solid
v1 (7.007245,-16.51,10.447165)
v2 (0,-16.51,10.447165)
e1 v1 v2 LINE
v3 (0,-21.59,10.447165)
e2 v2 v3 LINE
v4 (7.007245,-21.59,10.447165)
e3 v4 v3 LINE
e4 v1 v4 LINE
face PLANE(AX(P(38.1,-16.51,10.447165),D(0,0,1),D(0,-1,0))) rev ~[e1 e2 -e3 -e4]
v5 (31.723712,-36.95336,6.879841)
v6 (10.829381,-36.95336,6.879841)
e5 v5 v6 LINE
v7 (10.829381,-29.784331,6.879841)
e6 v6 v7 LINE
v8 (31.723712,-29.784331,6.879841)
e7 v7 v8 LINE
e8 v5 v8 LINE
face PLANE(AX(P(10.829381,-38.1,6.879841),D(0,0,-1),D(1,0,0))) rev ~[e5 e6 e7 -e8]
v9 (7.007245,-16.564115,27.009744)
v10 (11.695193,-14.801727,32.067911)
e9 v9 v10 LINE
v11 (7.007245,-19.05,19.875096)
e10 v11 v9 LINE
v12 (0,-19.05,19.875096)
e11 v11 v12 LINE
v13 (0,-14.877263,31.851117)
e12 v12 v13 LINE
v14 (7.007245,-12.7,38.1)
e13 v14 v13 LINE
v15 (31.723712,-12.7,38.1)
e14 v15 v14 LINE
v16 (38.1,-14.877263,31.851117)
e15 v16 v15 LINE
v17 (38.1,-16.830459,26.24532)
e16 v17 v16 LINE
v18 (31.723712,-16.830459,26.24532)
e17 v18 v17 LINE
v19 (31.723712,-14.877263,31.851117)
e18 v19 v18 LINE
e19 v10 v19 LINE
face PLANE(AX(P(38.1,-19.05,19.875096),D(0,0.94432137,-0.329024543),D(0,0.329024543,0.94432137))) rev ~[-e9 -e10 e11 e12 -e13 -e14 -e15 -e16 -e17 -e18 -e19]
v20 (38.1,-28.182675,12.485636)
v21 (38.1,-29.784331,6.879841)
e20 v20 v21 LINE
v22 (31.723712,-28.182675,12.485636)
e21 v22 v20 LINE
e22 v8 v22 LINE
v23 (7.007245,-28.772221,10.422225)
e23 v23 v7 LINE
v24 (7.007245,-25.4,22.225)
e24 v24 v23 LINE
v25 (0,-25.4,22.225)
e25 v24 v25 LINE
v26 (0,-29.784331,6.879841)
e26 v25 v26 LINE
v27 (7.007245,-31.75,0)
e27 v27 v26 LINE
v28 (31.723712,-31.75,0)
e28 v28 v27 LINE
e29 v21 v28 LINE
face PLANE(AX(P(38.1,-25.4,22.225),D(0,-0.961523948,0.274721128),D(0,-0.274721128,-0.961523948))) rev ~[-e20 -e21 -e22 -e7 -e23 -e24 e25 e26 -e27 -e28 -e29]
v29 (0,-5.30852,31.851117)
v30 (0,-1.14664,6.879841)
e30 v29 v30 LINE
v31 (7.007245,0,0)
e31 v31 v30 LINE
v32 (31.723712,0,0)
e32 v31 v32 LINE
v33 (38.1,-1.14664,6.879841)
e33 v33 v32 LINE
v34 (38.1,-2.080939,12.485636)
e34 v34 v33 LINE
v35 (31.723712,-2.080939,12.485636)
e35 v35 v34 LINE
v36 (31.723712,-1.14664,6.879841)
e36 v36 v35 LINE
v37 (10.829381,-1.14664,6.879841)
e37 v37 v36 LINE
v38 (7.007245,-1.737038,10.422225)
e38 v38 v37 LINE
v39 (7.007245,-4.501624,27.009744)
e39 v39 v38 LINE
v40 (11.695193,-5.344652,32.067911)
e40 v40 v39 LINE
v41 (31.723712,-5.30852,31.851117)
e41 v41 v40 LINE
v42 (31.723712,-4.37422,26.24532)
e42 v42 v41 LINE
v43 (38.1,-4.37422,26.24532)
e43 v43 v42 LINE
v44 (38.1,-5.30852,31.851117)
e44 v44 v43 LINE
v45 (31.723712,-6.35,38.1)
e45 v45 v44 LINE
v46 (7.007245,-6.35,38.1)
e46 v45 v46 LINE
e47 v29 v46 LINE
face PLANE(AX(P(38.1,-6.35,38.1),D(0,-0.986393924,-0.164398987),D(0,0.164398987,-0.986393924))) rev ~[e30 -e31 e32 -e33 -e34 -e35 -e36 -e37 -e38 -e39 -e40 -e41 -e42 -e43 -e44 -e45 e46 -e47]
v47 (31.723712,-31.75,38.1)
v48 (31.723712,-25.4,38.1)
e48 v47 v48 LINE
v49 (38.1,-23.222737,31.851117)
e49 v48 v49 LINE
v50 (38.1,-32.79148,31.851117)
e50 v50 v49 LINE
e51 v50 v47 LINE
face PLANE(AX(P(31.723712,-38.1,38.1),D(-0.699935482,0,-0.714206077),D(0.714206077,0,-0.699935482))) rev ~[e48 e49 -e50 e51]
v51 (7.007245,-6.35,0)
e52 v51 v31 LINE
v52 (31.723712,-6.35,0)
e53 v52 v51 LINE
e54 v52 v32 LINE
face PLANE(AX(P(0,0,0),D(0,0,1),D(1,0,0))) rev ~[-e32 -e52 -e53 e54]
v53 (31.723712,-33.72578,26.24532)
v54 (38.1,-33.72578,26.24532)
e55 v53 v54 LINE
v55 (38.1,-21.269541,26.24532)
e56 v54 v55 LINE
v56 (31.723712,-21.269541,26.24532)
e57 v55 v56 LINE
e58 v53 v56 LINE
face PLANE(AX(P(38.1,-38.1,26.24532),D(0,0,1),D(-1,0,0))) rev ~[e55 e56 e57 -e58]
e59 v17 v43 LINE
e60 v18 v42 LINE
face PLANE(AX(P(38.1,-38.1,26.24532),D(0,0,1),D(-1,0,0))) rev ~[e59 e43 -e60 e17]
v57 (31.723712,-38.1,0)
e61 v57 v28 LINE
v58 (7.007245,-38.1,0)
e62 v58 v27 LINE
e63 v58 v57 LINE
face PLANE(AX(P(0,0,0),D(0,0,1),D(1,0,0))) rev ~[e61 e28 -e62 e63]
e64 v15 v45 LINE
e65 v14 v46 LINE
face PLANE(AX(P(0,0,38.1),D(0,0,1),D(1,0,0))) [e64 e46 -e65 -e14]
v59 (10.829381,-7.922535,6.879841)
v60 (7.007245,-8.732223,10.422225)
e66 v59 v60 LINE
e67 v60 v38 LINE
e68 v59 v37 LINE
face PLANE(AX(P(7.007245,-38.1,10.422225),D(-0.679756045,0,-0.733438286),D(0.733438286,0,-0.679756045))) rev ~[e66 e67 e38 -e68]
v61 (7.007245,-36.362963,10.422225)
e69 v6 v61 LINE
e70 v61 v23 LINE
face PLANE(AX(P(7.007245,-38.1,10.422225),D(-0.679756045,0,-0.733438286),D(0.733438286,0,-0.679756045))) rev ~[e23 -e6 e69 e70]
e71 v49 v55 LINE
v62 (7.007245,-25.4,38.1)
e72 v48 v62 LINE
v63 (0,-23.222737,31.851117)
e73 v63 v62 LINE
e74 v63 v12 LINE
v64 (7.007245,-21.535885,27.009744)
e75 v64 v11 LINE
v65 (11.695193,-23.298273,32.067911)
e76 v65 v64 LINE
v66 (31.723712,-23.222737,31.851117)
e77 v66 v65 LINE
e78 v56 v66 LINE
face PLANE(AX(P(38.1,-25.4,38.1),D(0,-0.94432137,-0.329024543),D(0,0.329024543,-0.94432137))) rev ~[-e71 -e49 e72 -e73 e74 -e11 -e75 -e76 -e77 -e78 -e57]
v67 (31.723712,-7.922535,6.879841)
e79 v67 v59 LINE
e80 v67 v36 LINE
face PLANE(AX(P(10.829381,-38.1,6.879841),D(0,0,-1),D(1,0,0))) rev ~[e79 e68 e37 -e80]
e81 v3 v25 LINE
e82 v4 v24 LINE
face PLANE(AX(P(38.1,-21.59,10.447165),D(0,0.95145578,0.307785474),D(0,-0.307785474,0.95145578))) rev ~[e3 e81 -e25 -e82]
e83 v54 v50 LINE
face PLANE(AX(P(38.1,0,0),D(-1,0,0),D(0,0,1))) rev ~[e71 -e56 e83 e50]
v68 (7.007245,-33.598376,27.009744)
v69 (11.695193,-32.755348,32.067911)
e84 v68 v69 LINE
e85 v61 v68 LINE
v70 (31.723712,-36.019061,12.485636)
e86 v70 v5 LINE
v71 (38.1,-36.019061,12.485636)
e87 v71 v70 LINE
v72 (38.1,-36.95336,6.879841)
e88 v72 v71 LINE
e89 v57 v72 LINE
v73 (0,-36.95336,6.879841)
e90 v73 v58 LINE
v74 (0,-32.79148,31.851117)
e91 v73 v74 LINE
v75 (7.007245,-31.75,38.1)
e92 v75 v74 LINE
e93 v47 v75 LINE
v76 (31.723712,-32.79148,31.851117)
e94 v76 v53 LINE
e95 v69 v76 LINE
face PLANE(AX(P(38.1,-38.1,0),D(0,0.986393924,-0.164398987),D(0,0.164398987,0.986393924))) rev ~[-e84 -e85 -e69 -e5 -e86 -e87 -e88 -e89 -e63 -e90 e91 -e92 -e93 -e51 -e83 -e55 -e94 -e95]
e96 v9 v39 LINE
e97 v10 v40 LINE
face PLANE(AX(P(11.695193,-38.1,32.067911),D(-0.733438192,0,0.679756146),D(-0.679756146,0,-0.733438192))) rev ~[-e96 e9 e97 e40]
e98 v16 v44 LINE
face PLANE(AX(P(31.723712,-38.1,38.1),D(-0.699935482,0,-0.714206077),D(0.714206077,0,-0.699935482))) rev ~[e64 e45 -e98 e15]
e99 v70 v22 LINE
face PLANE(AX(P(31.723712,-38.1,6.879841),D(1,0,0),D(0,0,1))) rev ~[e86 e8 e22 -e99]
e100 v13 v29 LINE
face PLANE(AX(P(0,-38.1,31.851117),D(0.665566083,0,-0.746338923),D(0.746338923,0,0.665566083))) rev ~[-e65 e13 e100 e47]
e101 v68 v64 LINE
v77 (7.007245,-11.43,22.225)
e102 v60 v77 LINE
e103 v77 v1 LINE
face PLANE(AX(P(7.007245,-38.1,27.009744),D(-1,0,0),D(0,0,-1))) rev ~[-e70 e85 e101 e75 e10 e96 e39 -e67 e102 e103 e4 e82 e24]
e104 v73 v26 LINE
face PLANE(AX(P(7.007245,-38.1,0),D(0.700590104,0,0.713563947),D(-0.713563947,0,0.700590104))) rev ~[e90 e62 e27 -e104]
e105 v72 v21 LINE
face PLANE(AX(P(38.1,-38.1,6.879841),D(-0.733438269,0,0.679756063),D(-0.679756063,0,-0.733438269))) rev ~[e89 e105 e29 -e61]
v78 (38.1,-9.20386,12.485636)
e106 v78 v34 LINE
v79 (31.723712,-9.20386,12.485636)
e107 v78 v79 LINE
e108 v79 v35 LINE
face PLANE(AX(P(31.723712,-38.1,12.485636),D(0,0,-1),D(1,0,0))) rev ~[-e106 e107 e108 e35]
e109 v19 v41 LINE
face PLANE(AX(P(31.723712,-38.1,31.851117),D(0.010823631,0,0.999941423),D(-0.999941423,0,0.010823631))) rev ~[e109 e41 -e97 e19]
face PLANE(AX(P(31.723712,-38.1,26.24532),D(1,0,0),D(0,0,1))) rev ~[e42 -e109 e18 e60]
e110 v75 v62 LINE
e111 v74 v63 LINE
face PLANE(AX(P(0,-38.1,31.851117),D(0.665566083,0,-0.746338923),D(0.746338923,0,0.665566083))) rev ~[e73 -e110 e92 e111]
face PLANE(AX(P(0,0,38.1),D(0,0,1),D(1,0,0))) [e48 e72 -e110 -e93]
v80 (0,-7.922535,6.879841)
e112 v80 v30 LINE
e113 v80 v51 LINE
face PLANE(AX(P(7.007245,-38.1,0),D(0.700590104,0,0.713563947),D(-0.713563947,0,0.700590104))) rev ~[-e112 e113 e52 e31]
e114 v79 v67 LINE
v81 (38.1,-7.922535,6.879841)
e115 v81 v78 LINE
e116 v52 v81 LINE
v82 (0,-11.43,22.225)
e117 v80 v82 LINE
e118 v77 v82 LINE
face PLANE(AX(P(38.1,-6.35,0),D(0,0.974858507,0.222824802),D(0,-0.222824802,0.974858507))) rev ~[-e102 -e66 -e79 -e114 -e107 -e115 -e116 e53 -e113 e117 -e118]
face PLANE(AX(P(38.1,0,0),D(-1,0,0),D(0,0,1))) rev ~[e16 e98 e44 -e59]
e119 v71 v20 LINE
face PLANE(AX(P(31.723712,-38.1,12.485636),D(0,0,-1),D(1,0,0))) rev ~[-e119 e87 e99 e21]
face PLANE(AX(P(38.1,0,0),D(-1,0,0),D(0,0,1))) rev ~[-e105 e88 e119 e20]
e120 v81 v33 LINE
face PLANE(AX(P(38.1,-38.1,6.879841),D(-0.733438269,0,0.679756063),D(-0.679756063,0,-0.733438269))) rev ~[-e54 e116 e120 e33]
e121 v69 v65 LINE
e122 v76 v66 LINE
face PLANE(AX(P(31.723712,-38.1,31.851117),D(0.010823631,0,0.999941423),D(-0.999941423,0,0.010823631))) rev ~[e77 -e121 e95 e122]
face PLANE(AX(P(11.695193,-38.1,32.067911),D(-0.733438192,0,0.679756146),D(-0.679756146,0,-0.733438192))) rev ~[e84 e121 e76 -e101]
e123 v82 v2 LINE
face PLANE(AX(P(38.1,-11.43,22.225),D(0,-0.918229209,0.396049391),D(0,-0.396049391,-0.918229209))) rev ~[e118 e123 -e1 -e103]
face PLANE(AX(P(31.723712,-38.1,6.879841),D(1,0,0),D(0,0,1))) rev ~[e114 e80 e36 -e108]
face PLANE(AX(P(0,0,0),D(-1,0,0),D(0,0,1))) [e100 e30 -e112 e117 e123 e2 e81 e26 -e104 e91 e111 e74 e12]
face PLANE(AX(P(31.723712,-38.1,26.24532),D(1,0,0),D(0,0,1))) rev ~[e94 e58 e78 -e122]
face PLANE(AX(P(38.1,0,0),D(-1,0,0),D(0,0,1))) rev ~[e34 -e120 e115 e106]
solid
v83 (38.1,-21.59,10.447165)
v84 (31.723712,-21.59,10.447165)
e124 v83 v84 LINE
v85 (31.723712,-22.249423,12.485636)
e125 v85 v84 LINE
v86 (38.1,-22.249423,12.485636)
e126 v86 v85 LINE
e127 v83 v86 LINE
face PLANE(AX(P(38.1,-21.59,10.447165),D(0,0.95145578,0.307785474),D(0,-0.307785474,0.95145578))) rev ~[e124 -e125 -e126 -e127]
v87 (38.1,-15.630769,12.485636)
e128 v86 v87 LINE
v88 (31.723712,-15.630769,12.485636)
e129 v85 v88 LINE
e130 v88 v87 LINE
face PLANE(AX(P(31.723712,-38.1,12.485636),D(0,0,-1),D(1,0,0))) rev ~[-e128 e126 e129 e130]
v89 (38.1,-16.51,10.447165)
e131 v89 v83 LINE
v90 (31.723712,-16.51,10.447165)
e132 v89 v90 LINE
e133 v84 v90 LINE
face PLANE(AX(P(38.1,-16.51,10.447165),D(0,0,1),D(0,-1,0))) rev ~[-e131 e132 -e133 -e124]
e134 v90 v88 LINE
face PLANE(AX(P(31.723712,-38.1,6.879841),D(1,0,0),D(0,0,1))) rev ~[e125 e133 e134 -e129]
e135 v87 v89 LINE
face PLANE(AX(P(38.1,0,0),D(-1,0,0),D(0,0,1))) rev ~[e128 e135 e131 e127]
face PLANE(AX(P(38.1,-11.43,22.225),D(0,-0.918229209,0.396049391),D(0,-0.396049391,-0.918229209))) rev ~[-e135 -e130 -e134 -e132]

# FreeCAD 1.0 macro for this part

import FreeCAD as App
import Part
import Sketcher

V = App.Vector
Q = App.Units.Quantity


def add_polygon(sketch, points):
    """Adds a closed chain of lines whose ends are joined by coincident constraints."""
    first, n = sketch.GeometryCount, len(points)
    for a, b in zip(points, points[1:] + points[:1]):
        sketch.addGeometry(Part.LineSegment(App.Vector(*a, 0), App.Vector(*b, 0)), False)
    for i in range(n):
        sketch.addConstraint(Sketcher.Constraint("Coincident", first + i, 2, first + (i + 1) % n, 1))

doc = App.newDocument("Part")
body = doc.addObject("PartDesign::Body", "Body")
body.AllowCompound = True

# Sketch on XZ plane
sketch1 = body.newObject("Sketcher::SketchObject", "Sketch")
sketch1.AttachmentSupport = (doc.getObject("XZ_Plane"), [""])
sketch1.MapMode = "FlatFace"
add_polygon(sketch1, [(0, 38.1), (0, 0), (38.1, 0), (38.1, 38.1)])  # lines 0-3
sketch1.addConstraint([
    Sketcher.Constraint("Vertical", 0),
    Sketcher.Constraint("Horizontal", 1),
    Sketcher.Constraint("Vertical", 2),
    Sketcher.Constraint("Horizontal", 3),
    Sketcher.Constraint("Coincident", 0, 2, -1, 1),
    Sketcher.Constraint("Equal", 3, 0),
    Sketcher.Constraint("DistanceX", 1, 1, 1, 2, Q("1.5 in")),
])
pad1 = body.newObject("PartDesign::Pad", "Pad")
pad1.Profile = sketch1
pad1.Length = Q("1.5 in")

# Sketch on YZ plane
sketch2 = body.newObject("Sketcher::SketchObject", "Sketch001")
sketch2.AttachmentSupport = (doc.getObject("YZ_Plane"), [""])
sketch2.MapMode = "FlatFace"
sketch2.AttachmentOffset = App.Placement(V(0, 0, 1.5 * 25.4), App.Rotation())
add_polygon(sketch2, [(-38.1, 38.1), (-38.1, 0), (-31.75, 38.1)])  # lines 0-2
add_polygon(sketch2, [(-19.05, 19.875096), (-12.7, 38.1), (-25.4, 38.1)])  # lines 3-5
add_polygon(sketch2, [(-6.35, 38.1), (0, 0), (0, 38.1)])  # lines 6-8
add_polygon(sketch2, [(-31.75, 0), (-6.35, 0), (-11.43, 22.225), (-16.51, 10.447165), (-21.59, 10.447165), (-25.4, 22.225)])  # lines 9-14
sketch2.addConstraint([
    Sketcher.Constraint("Vertical", 0),
    Sketcher.Constraint("Horizontal", 2),
    Sketcher.Constraint("Horizontal", 4),
    Sketcher.Constraint("Vertical", 7),
    Sketcher.Constraint("Horizontal", 8),
    Sketcher.Constraint("Horizontal", 9),
    Sketcher.Constraint("Horizontal", 12),
    Sketcher.Constraint("Coincident", 6, 2, -1, 1),
    Sketcher.Constraint("PointOnObject", 0, 2, -1),
    Sketcher.Constraint("PointOnObject", 9, 2, -1),
    Sketcher.Constraint("Horizontal", 2, 2, 3, 2),
    Sketcher.Constraint("Horizontal", 4, 2, 7, 2),
    Sketcher.Constraint("Horizontal", 10, 2, 13, 2),
    Sketcher.Constraint("Vertical", 8, 2, 9, 2),
    Sketcher.Constraint("Vertical", 4, 2, 13, 2),
    Sketcher.Constraint("Vertical", 1, 2, 14, 2),
    Sketcher.Constraint("Equal", 2, 8),
    Sketcher.Constraint("Equal", 3, 5),
    Sketcher.Constraint("DistanceX", 9, 1, 9, 2, Q("1 in")),
    Sketcher.Constraint("DistanceX", 4, 2, 4, 1, Q("0.5 in")),
    Sketcher.Constraint("DistanceX", 12, 2, 12, 1, Q("0.2 in")),
    Sketcher.Constraint("DistanceY", 0, 2, 0, 1, Q("1.5 in")),
    Sketcher.Constraint("DistanceX", 4, 2, -1, 1, Q("1 in")),
    Sketcher.Constraint("DistanceX", 2, 2, 3, 2, Q("1 in")),
    Sketcher.Constraint("DistanceX", 5, 2, 10, 2, Q("0.3 in")),
    Sketcher.Constraint("DistanceX", 5, 2, 11, 2, Q("0.1 in")),
    Sketcher.Constraint("DistanceY", -1, 1, 10, 2, Q("0.875 in")),
    Sketcher.Constraint("Distance", 13, Q("12.378752 mm")),
    Sketcher.Constraint("DistanceY", 11, 2, 5, 2, Q("9.427931 mm")),
])
pocket1 = body.newObject("PartDesign::Pocket", "Pocket")
pocket1.Profile = sketch2
pocket1.Length = Q("1.5 in")

# Sketch on XZ plane
sketch3 = body.newObject("Sketcher::SketchObject", "Sketch002")
sketch3.AttachmentSupport = (doc.getObject("XZ_Plane"), [""])
sketch3.MapMode = "FlatFace"
sketch3.AttachmentOffset = App.Placement(V(0, 0, 1.5 * 25.4), App.Rotation())
add_polygon(sketch3, [(0, 38.1), (0, 31.851117), (7.007245, 38.1)])  # lines 0-2
add_polygon(sketch3, [(0, 6.879841), (0, 0), (7.007245, 0)])  # lines 3-5
add_polygon(sketch3, [(38.1, 38.1), (31.723712, 38.1), (38.1, 31.851117)])  # lines 6-8
add_polygon(sketch3, [(38.1, 6.879841), (31.723712, 0), (38.1, 0)])  # lines 9-11
add_polygon(sketch3, [(31.723712, 12.485636), (38.1, 12.485636), (38.1, 26.24532), (31.723712, 26.24532), (31.723712, 31.851117), (11.695193, 32.067911), (7.007245, 27.009744), (7.007245, 10.422225), (10.829381, 6.879841), (31.723712, 6.879841)])  # lines 12-21
sketch3.addConstraint([
    Sketcher.Constraint("Vertical", 0),
    Sketcher.Constraint("Horizontal", 2),
    Sketcher.Constraint("Vertical", 3),
    Sketcher.Constraint("Horizontal", 4),
    Sketcher.Constraint("Horizontal", 6),
    Sketcher.Constraint("Vertical", 8),
    Sketcher.Constraint("Horizontal", 10),
    Sketcher.Constraint("Vertical", 11),
    Sketcher.Constraint("Horizontal", 12),
    Sketcher.Constraint("Vertical", 13),
    Sketcher.Constraint("Horizontal", 14),
    Sketcher.Constraint("Vertical", 15),
    Sketcher.Constraint("Vertical", 18),
    Sketcher.Constraint("Horizontal", 20),
    Sketcher.Constraint("Vertical", 21),
    Sketcher.Constraint("Coincident", 3, 2, -1, 1),
    Sketcher.Constraint("PointOnObject", 0, 2, -2),
    Sketcher.Constraint("PointOnObject", 9, 2, -1),
    Sketcher.Constraint("Parallel", 9, 17),
    Sketcher.Constraint("Perpendicular", 17, 19),
    Sketcher.Constraint("Horizontal", 2, 2, 6, 2),
    Sketcher.Constraint("Horizontal", 0, 2, 7, 2),
    Sketcher.Constraint("Horizontal", 5, 2, 11, 2),
    Sketcher.Constraint("Horizontal", 7, 2, 15, 2),
    Sketcher.Constraint("Horizontal", 11, 2, 19, 2),
    Sketcher.Constraint("Vertical", 1, 2, 4, 2),
    Sketcher.Constraint("Vertical", 6, 2, 9, 2),
    Sketcher.Constraint("Vertical", 8, 2, 10, 2),
    Sketcher.Constraint("Vertical", 11, 2, 12, 2),
    Sketcher.Constraint("Vertical", 9, 2, 14, 2),
    Sketcher.Constraint("Vertical", 4, 2, 17, 2),
    Sketcher.Constraint("Vertical", 15, 2, 20, 2),
    Sketcher.Constraint("Equal", 15, 21),
    Sketcher.Constraint("DistanceY", -1, 1, 1, 2, Q("1.5 in")),
    Sketcher.Constraint("DistanceX", -1, 1, 7, 2, Q("1.5 in")),
    Sketcher.Constraint("Distance", 7, Q("8.927799 mm")),
    Sketcher.Constraint("DistanceX", 6, 2, 6, 1, Q("6.376288 mm")),
    Sketcher.Constraint("DistanceX", 20, 1, 20, 2, Q("20.894331 mm")),
    Sketcher.Constraint("DistanceY", 3, 2, 3, 1, Q("6.879841 mm")),
    Sketcher.Constraint("DistanceY", 18, 2, 18, 1, Q("16.587519 mm")),
    Sketcher.Constraint("DistanceX", 2, 2, 2, 1, Q("7.007245 mm")),
    Sketcher.Constraint("DistanceY", 13, 1, 13, 2, Q("13.759684 mm")),
    Sketcher.Constraint("DistanceY", -1, 1, 16, 2, Q("32.067911 mm")),
])
pocket2 = body.newObject("PartDesign::Pocket", "Pocket001")
pocket2.Profile = sketch3
pocket2.Length = Q("1.5 in")

doc.recompute()
